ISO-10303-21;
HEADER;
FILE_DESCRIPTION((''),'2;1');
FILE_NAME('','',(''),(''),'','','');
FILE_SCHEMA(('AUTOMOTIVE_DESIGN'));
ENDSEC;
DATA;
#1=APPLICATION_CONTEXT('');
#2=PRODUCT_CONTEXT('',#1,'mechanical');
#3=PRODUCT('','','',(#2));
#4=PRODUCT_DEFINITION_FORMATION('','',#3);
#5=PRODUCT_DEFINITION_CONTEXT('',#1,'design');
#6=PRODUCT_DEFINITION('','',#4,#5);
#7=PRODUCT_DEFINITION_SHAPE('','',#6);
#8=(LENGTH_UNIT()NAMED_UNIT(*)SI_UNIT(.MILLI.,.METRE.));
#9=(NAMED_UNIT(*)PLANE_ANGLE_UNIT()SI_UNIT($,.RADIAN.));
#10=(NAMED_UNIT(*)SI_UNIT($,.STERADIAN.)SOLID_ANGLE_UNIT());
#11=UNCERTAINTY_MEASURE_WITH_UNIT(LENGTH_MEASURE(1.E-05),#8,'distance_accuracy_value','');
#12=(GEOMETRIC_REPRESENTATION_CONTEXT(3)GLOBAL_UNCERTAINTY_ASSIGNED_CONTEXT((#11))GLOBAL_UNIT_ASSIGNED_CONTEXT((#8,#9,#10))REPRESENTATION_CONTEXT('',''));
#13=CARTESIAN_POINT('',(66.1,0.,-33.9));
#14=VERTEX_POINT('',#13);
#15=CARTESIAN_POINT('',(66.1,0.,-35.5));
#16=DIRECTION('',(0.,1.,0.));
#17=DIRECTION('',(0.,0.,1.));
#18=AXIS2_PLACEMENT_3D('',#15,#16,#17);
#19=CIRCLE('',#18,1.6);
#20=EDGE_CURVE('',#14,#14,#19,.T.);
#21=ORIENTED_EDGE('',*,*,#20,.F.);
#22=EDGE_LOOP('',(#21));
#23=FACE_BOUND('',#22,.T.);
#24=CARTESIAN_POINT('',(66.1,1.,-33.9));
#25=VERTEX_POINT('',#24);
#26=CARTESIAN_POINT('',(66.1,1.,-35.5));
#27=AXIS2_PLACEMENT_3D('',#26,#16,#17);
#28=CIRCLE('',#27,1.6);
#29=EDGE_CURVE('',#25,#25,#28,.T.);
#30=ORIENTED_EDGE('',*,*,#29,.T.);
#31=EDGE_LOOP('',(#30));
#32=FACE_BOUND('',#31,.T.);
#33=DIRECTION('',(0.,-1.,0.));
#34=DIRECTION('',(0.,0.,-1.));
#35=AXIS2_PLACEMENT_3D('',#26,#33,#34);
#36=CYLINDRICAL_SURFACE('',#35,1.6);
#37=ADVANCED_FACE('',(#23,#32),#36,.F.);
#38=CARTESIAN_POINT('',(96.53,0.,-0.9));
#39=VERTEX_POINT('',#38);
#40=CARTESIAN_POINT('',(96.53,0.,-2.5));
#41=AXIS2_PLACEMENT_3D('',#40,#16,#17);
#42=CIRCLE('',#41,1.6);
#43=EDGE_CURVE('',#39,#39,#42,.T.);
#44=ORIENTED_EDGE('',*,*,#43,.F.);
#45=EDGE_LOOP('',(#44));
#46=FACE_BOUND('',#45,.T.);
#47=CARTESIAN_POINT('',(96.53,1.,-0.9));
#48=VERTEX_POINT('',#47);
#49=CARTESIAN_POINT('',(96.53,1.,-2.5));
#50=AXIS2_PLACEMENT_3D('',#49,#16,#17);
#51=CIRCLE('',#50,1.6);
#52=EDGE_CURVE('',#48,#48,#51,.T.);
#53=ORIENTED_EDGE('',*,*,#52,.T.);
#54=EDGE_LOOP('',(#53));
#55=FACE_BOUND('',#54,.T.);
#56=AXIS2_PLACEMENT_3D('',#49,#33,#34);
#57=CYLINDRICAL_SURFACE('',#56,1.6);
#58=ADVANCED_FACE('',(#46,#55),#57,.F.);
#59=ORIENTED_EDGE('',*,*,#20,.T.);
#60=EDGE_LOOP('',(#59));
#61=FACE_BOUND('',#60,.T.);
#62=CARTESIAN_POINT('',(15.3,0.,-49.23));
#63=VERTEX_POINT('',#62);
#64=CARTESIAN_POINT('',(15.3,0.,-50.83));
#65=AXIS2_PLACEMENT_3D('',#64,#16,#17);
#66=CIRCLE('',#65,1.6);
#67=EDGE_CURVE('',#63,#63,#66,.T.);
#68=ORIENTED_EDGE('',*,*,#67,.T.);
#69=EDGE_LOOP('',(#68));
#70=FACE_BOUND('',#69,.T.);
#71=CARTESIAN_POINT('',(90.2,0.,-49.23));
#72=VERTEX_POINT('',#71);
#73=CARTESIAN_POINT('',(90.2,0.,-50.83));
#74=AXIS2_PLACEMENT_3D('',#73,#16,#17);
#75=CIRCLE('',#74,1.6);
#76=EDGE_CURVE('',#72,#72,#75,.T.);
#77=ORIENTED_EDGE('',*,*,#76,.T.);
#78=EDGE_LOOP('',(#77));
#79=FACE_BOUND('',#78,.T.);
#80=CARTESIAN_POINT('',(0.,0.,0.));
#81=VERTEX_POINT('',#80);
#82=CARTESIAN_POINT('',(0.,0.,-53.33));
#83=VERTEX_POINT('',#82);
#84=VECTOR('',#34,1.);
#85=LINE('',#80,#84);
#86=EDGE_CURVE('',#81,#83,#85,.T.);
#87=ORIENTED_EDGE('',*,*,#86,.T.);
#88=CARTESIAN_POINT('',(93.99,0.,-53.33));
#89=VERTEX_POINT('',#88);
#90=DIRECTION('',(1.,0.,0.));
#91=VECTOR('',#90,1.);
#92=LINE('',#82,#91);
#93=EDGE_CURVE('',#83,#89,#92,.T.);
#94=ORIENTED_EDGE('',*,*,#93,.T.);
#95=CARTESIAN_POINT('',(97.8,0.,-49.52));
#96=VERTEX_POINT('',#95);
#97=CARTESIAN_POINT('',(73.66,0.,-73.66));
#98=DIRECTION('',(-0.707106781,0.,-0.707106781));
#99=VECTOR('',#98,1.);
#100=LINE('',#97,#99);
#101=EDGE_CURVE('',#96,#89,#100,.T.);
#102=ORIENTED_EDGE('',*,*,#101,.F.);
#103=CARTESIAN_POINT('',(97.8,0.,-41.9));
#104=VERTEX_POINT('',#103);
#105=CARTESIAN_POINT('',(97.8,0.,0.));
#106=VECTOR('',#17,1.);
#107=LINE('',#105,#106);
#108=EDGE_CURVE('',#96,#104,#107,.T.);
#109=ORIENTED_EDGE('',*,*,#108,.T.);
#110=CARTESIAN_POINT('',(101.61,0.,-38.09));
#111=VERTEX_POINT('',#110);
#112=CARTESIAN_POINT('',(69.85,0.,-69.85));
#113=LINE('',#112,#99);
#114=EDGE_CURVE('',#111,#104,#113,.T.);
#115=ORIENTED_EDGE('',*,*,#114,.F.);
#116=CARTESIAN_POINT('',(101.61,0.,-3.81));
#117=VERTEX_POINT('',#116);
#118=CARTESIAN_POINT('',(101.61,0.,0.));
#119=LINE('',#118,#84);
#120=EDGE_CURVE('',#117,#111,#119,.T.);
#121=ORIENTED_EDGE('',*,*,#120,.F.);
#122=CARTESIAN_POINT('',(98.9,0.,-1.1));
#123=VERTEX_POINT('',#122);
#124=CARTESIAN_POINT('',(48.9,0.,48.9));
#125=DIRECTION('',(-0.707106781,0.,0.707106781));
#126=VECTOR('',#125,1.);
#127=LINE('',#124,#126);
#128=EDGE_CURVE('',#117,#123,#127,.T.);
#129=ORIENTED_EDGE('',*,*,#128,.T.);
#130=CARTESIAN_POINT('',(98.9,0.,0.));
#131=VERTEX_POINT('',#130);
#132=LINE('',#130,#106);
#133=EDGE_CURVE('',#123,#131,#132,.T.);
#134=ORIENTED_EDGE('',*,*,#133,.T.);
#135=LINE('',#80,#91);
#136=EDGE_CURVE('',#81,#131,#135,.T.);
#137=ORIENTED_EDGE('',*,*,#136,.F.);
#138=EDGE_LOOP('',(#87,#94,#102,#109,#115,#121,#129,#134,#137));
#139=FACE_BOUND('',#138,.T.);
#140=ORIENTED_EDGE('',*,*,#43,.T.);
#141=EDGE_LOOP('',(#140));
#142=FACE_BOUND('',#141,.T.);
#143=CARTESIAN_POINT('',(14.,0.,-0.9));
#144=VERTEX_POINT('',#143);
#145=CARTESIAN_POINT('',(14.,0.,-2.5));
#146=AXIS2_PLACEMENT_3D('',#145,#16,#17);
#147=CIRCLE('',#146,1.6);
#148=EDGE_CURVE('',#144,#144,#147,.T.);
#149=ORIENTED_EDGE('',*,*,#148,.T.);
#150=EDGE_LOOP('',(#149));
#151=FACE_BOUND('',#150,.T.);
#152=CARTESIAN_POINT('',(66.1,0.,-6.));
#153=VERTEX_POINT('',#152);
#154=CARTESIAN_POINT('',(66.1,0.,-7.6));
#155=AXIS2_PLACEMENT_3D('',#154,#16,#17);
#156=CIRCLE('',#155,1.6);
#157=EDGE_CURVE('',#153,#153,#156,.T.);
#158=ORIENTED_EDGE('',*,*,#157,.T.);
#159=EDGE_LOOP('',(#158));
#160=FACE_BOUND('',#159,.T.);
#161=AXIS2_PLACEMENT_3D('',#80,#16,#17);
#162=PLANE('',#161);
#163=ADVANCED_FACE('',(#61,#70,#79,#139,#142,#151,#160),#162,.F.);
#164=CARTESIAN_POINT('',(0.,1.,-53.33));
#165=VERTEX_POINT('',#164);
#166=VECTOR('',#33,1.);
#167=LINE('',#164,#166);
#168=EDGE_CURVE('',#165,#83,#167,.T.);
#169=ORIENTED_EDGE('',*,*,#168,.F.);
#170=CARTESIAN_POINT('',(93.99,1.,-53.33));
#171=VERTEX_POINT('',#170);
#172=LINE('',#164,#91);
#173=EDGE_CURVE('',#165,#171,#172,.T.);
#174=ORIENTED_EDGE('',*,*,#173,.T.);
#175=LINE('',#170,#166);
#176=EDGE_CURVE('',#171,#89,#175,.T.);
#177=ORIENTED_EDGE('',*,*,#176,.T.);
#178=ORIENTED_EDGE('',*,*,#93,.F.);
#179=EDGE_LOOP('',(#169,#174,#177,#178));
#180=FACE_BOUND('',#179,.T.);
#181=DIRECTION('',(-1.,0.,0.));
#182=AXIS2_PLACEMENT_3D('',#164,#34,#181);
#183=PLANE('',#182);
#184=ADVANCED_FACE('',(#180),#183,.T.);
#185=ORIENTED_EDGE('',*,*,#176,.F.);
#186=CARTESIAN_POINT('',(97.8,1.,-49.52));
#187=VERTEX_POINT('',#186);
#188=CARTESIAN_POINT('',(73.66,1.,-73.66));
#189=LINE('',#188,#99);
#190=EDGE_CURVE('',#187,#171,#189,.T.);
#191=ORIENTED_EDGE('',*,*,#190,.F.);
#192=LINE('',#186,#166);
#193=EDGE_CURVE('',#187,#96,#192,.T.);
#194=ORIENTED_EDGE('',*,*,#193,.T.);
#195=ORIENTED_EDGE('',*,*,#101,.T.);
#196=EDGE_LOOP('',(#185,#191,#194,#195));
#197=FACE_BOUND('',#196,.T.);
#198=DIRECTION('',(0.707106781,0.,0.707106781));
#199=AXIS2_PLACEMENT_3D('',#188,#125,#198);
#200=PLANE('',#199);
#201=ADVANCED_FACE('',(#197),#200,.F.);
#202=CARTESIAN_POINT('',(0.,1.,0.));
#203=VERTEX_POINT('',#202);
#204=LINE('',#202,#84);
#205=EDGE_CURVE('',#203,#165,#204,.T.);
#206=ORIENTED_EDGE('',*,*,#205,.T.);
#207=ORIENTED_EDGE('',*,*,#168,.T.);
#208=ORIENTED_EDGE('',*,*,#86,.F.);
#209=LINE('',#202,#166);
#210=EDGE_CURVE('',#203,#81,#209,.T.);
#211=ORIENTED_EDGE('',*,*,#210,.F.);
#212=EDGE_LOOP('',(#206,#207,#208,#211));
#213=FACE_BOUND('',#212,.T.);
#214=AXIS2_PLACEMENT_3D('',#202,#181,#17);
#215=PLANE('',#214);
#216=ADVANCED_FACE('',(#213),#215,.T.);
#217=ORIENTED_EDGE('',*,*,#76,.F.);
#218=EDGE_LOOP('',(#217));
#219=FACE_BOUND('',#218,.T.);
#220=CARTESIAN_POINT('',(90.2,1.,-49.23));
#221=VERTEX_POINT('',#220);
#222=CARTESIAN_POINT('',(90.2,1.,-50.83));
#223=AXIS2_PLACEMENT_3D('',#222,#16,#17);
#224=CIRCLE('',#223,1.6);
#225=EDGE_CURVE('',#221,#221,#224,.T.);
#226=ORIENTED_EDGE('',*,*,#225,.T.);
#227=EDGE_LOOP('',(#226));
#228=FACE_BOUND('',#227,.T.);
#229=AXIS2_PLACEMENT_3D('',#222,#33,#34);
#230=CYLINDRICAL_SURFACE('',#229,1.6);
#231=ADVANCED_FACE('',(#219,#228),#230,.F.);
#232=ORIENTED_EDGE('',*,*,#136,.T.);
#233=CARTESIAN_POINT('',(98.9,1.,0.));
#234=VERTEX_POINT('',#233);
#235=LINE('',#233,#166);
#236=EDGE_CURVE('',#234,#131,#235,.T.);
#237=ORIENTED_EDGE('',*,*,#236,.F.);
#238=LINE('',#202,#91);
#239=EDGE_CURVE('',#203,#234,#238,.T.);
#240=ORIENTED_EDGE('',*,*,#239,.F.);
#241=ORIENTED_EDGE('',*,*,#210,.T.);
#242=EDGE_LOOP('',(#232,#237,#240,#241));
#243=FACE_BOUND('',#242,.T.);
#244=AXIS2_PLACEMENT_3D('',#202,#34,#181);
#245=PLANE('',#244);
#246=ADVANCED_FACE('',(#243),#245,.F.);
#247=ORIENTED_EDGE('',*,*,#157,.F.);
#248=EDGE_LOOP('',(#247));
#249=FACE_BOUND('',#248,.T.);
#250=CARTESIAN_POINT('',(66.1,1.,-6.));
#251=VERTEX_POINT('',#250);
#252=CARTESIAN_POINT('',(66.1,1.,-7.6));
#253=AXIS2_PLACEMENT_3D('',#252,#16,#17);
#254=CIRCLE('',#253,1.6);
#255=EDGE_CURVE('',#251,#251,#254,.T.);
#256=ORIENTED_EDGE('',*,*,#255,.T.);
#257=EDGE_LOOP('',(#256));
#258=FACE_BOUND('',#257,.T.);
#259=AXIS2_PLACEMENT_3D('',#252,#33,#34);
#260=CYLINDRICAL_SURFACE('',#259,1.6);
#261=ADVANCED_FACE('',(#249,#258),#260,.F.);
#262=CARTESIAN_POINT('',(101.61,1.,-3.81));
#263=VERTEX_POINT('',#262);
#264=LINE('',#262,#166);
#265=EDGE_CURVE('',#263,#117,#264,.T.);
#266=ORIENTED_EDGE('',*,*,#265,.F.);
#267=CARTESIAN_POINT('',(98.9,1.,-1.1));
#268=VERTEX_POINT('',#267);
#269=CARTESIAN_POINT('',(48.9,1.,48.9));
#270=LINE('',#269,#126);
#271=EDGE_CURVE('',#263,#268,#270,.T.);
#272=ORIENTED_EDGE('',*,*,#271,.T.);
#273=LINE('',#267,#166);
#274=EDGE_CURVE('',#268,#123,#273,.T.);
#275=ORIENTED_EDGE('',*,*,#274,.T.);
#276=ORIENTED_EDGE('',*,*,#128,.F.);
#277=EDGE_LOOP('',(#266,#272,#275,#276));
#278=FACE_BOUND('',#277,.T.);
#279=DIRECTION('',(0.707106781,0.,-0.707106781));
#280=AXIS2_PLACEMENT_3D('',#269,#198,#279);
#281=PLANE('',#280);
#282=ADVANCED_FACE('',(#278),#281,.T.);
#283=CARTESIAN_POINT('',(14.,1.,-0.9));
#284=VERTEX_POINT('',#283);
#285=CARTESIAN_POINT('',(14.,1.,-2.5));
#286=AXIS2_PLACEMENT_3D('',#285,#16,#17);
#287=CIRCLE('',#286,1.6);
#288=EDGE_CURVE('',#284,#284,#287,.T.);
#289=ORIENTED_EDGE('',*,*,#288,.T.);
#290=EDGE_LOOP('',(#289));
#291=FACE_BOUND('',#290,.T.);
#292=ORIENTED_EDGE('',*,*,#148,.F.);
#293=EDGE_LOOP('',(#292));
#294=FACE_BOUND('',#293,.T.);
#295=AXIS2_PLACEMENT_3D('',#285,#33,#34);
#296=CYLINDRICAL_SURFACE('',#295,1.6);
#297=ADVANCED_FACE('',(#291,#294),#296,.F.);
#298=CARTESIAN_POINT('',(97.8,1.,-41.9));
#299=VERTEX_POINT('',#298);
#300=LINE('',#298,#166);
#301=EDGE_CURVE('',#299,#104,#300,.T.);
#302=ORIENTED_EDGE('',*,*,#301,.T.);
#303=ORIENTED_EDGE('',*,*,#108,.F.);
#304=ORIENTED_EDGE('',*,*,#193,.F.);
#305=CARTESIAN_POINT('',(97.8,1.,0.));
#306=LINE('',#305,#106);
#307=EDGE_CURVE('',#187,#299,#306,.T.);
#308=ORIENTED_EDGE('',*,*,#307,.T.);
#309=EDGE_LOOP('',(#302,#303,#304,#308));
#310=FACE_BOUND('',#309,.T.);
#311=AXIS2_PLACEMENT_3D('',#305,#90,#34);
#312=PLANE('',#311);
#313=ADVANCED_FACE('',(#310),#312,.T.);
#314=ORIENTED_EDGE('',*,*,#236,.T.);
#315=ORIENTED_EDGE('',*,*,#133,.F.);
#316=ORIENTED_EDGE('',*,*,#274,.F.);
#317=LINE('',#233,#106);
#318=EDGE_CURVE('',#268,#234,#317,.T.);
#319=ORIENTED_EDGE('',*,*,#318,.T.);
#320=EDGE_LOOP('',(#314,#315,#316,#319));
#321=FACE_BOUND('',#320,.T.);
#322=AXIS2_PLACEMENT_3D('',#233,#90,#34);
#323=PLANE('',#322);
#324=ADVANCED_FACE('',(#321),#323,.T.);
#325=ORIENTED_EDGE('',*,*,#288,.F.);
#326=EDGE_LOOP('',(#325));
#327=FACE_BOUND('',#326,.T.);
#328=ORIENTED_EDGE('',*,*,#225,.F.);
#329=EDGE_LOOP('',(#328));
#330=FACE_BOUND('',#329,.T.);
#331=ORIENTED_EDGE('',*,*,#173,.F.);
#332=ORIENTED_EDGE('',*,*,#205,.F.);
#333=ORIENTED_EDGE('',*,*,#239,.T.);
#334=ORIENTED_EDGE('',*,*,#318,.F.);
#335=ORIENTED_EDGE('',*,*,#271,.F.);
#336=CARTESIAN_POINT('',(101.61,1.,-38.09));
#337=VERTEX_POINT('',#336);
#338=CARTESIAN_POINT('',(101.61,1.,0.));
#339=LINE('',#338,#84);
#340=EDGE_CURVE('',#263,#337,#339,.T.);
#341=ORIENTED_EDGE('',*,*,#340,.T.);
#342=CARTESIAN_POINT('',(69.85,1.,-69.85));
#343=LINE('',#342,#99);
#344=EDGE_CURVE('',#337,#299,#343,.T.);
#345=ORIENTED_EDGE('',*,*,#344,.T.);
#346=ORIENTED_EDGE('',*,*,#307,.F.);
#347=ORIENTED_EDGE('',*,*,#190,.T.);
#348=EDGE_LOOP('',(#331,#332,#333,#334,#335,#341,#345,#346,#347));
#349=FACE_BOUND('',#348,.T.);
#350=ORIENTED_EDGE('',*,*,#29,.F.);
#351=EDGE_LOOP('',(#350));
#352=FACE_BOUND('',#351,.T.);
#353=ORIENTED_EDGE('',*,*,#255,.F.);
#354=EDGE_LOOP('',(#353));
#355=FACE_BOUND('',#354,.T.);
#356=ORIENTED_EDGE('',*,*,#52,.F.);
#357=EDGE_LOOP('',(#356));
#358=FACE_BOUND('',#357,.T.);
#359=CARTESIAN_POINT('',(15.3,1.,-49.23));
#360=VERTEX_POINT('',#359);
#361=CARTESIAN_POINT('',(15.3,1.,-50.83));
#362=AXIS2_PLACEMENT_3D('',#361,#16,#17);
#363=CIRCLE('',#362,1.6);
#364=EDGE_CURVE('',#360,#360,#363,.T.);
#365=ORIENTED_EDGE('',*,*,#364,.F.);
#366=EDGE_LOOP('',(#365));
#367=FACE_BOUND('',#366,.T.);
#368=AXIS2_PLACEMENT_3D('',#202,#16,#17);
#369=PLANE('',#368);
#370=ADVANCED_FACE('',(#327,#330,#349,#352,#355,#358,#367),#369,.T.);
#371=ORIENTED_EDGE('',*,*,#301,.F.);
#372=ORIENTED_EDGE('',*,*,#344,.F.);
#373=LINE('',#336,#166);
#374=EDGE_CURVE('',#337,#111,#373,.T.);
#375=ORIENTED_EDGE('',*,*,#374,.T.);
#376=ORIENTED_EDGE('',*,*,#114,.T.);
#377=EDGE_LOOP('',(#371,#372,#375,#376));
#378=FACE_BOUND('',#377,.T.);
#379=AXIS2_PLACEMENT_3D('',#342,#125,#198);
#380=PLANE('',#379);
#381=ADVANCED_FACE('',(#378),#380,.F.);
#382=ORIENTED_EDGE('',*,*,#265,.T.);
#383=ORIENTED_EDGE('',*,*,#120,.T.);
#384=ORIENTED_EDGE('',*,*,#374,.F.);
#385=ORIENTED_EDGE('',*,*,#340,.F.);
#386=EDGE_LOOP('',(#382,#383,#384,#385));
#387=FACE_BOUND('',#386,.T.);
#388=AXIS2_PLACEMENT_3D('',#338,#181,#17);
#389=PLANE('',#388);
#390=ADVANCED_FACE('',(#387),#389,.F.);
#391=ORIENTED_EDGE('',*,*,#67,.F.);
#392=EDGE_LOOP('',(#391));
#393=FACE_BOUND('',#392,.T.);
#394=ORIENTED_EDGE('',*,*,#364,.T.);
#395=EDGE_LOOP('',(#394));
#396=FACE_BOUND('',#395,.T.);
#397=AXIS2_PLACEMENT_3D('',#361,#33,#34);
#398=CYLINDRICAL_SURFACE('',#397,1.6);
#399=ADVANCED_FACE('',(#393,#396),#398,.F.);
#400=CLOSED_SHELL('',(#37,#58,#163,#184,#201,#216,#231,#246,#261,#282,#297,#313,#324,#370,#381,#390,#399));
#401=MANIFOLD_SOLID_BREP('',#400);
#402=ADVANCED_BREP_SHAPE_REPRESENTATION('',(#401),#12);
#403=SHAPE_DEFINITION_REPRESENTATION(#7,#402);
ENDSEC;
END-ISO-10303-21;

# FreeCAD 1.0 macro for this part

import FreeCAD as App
import Part
import Sketcher
Q = App.Units.Quantity

doc = App.newDocument("Part")
params = doc.addObject("Spreadsheet::Sheet", "Params")
for row, (alias, value) in enumerate([
    ("sketch1_diameter", "3.2 mm"),
    ("sketch1_width", "98.9 mm"),
    ("sketch1_height", "1.1 mm"),
    ("sketch1_width2", "93.99 mm"),
    ("sketch1_height2", "34.28 mm"),
    ("pad1_length", "1 mm"),
], start=1):
    params.set(f"A{row}", alias)
    params.set(f"B{row}", "=" + value)
    params.setAlias(f"B{row}", alias)

body = doc.addObject("PartDesign::Body", "Body")

sketch1 = body.newObject("Sketcher::SketchObject", "Sketch")
sketch1.AttachmentSupport = (doc.getObject("XZ_Plane"), [""])
sketch1.MapMode = "FlatFace"
sketch1.addGeometry([
    Part.LineSegment(App.Vector(101.6, -3.8, 0), App.Vector(101.6, -38.1, 0)),
    Part.LineSegment(App.Vector(101.6, -38.1, 0), App.Vector(97.8, -41.9, 0)),
    Part.LineSegment(App.Vector(97.8, -41.9, 0), App.Vector(97.8, -49.5, 0)),
    Part.LineSegment(App.Vector(97.8, -49.5, 0), App.Vector(94, -53.3, 0)),
    Part.LineSegment(App.Vector(94, -53.3, 0), App.Vector(0, -53.3, 0)),
    Part.LineSegment(App.Vector(0, -53.3, 0), App.Vector(0, 0, 0)),
    Part.LineSegment(App.Vector(0, 0, 0), App.Vector(98.9, 0, 0)),
    Part.LineSegment(App.Vector(98.9, 0, 0), App.Vector(98.9, -1.1, 0)),
    Part.LineSegment(App.Vector(98.9, -1.1, 0), App.Vector(101.6, -3.8, 0)),
    Part.Circle(App.Vector(14, -2.5, 0), App.Vector(0, 0, 1), 1.6),
    Part.Circle(App.Vector(66.1, -7.6, 0), App.Vector(0, 0, 1), 1.6),
    Part.Circle(App.Vector(96.5, -2.5, 0), App.Vector(0, 0, 1), 1.6),
    Part.Circle(App.Vector(15.3, -50.8, 0), App.Vector(0, 0, 1), 1.6),
    Part.Circle(App.Vector(66.1, -35.5, 0), App.Vector(0, 0, 1), 1.6),
    Part.Circle(App.Vector(90.2, -50.8, 0), App.Vector(0, 0, 1), 1.6),
], False)
sketch1.addConstraint([
    Sketcher.Constraint("Coincident", 0, 2, 1, 1),
    Sketcher.Constraint("Coincident", 1, 2, 2, 1),
    Sketcher.Constraint("Coincident", 2, 2, 3, 1),
    Sketcher.Constraint("Coincident", 3, 2, 4, 1),
    Sketcher.Constraint("Coincident", 4, 2, 5, 1),
    Sketcher.Constraint("Coincident", 5, 2, 6, 1),
    Sketcher.Constraint("Coincident", 6, 2, 7, 1),
    Sketcher.Constraint("Coincident", 7, 2, 8, 1),
    Sketcher.Constraint("Coincident", 8, 2, 0, 1),
    Sketcher.Constraint("Vertical", 0),
    Sketcher.Constraint("Vertical", 2),
    Sketcher.Constraint("Horizontal", 4),
    Sketcher.Constraint("Vertical", 5),
    Sketcher.Constraint("Horizontal", 6),
    Sketcher.Constraint("Vertical", 7),
    Sketcher.Constraint("Coincident", 5, 2, -1, 1),
    Sketcher.Constraint("Equal", 9, 10),
    Sketcher.Constraint("Equal", 10, 11),
    Sketcher.Constraint("Equal", 11, 12),
    Sketcher.Constraint("Equal", 12, 13),
    Sketcher.Constraint("Equal", 13, 14),
    Sketcher.Constraint("Parallel", 1, 3),
    Sketcher.Constraint("Perpendicular", 3, 8),
    Sketcher.Constraint("Horizontal", 9, 3, 11, 3),
    Sketcher.Constraint("Horizontal", 12, 3, 14, 3),
    Sketcher.Constraint("Vertical", 10, 3, 13, 3),
    Sketcher.Constraint("Equal", 1, 3),
    Sketcher.Constraint("Diameter", 9, Q("3.2 mm")),
    Sketcher.Constraint("Angle", 1, Q("-135 deg")),
    Sketcher.Constraint("DistanceX", 6, 1, 6, 2, Q("98.9 mm")),
    Sketcher.Constraint("DistanceY", 7, 2, 7, 1, Q("1.1 mm")),
    Sketcher.Constraint("DistanceX", -1, 1, 9, 3, Q("14 mm")),
    Sketcher.Constraint("DistanceY", 13, 3, 11, 3, Q("33 mm")),
    Sketcher.Constraint("DistanceX", 4, 2, 4, 1, Q("93.99 mm")),
    Sketcher.Constraint("DistanceY", 0, 2, 0, 1, Q("34.28 mm")),
    Sketcher.Constraint("DistanceY", 2, 2, 2, 1, Q("7.62 mm")),
    Sketcher.Constraint("DistanceY", 5, 1, 5, 2, Q("53.33 mm")),
    Sketcher.Constraint("DistanceY", 9, 3, -1, 1, Q("2.5 mm")),
    Sketcher.Constraint("DistanceX", -1, 1, 10, 3, Q("66.1 mm")),
    Sketcher.Constraint("DistanceY", 10, 3, -1, 1, Q("7.6 mm")),
    Sketcher.Constraint("DistanceX", -1, 1, 12, 3, Q("15.3 mm")),
    Sketcher.Constraint("DistanceX", -1, 1, 14, 3, Q("90.2 mm")),
    Sketcher.Constraint("DistanceY", 3, 2, 14, 3, Q("2.5 mm")),
    Sketcher.Constraint("DistanceX", -1, 1, 11, 3, Q("96.53 mm")),
])
sketch1.setExpression("Constraints[27]", "Params.sketch1_diameter")
sketch1.setExpression("Constraints[29]", "Params.sketch1_width")
sketch1.setExpression("Constraints[30]", "Params.sketch1_height")
sketch1.setExpression("Constraints[33]", "Params.sketch1_width2")
sketch1.setExpression("Constraints[34]", "Params.sketch1_height2")
pad1 = body.newObject("PartDesign::Pad", "Pad")
pad1.Profile = sketch1
pad1.setExpression("Length", "Params.pad1_length")
pad1.Reversed = True

doc.recompute()
